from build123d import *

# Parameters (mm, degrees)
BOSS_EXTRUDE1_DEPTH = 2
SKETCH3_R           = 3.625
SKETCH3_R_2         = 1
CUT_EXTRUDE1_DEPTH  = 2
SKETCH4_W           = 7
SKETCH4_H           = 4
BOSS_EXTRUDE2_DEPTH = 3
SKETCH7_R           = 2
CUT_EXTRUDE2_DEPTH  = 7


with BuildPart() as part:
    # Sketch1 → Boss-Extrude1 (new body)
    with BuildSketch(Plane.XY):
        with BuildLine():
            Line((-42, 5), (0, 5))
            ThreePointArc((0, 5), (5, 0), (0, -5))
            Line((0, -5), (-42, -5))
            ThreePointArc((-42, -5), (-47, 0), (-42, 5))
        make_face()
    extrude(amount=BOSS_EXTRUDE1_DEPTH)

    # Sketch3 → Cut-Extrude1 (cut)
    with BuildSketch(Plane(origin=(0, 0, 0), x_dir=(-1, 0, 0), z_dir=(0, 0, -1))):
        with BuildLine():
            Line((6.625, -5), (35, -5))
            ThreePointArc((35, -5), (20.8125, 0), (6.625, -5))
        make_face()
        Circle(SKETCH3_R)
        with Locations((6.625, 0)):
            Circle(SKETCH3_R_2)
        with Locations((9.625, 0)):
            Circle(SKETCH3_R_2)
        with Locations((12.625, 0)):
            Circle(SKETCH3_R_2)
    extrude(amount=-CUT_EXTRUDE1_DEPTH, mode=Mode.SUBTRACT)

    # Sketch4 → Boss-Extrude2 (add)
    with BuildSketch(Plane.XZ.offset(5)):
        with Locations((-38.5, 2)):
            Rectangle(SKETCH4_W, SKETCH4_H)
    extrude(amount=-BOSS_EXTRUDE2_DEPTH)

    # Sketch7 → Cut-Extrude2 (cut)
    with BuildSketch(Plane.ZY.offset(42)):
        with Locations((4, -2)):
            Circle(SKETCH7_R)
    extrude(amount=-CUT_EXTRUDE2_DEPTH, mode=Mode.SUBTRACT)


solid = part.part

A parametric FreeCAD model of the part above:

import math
import FreeCAD as App
import Part
import Sketcher
Q = App.Units.Quantity

doc = App.newDocument("Part")
body = doc.addObject("PartDesign::Body", "Body")

sketch1 = body.newObject("Sketcher::SketchObject", "Sketch")
sketch1.AttachmentSupport = (doc.getObject("XY_Plane"), [""])
sketch1.MapMode = "FlatFace"
sketch1.addGeometry(Part.LineSegment(App.Vector(0, 5, 0), App.Vector(-42, 5, 0)), False)
sketch1.addGeometry(Part.ArcOfCircle(Part.Circle(App.Vector(-42, 0, 0), App.Vector(0, 0, 1), 5), math.radians(90), math.radians(270)), False)
sketch1.addGeometry(Part.LineSegment(App.Vector(-42, -5, 0), App.Vector(0, -5, 0)), False)
sketch1.addGeometry(Part.ArcOfCircle(Part.Circle(App.Vector(0, 0, 0), App.Vector(0, 0, 1), 5), math.radians(-90), math.radians(90)), False)
sketch1.addConstraint(Sketcher.Constraint("Tangent", 0, 2, 1, 1))
sketch1.addConstraint(Sketcher.Constraint("Tangent", 1, 2, 2, 1))
sketch1.addConstraint(Sketcher.Constraint("Tangent", 2, 2, 3, 1))
sketch1.addConstraint(Sketcher.Constraint("Tangent", 3, 2, 0, 1))
sketch1.addConstraint(Sketcher.Constraint("Horizontal", 0))
sketch1.addConstraint(Sketcher.Constraint("Horizontal", 2))
sketch1.addConstraint(Sketcher.Constraint("Coincident", 3, 3, -1, 1))
sketch1.addConstraint(Sketcher.Constraint("Radius", 1, Q("5 mm")))
sketch1.addConstraint(Sketcher.Constraint("DistanceX", 0, 2, 0, 1, Q("42 mm")))
pad1 = body.newObject("PartDesign::Pad", "Pad")
pad1.Profile = sketch1
pad1.Length = 2

sketch2 = body.newObject("Sketcher::SketchObject", "Sketch001")
sketch2.AttachmentSupport = (doc.getObject("XY_Plane"), [""])
sketch2.MapMode = "FlatFace"
sketch2.addGeometry(Part.LineSegment(App.Vector(-6.6, -5, 0), App.Vector(-35, -5, 0)), False)
sketch2.addGeometry(Part.ArcOfCircle(Part.Circle(App.Vector(-20.8, -22.6, 0), App.Vector(0, 0, 1), 22.6), math.radians(51), math.radians(129)), False)
sketch2.addGeometry(Part.Circle(App.Vector(0, 0, 0), App.Vector(0, 0, 1), 3.6), False)
sketch2.addGeometry(Part.Circle(App.Vector(-6.6, 0, 0), App.Vector(0, 0, 1), 1), False)
sketch2.addGeometry(Part.Circle(App.Vector(-9.6, 0, 0), App.Vector(0, 0, 1), 1), False)
sketch2.addGeometry(Part.Circle(App.Vector(-12.6, 0, 0), App.Vector(0, 0, 1), 1), False)
sketch2.addConstraint(Sketcher.Constraint("Coincident", 0, 1, 1, 1))
sketch2.addConstraint(Sketcher.Constraint("Coincident", 1, 2, 0, 2))
sketch2.addConstraint(Sketcher.Constraint("Horizontal", 0))
sketch2.addConstraint(Sketcher.Constraint("Coincident", 2, 3, -1, 1))
sketch2.addConstraint(Sketcher.Constraint("Equal", 3, 4))
sketch2.addConstraint(Sketcher.Constraint("Equal", 4, 5))
sketch2.addConstraint(Sketcher.Constraint("PointOnObject", 3, 3, -1))
sketch2.addConstraint(Sketcher.Constraint("PointOnObject", 4, 3, -1))
sketch2.addConstraint(Sketcher.Constraint("PointOnObject", 5, 3, -1))
sketch2.addConstraint(Sketcher.Constraint("Vertical", 3, 3, 0, 1))
sketch2.addConstraint(Sketcher.Constraint("Diameter", 3, Q("2 mm")))
sketch2.addConstraint(Sketcher.Constraint("Diameter", 2, Q("7.25 mm")))
sketch2.addConstraint(Sketcher.Constraint("DistanceY", 0, 1, -1, 1, Q("5 mm")))
sketch2.addConstraint(Sketcher.Constraint("DistanceX", 1, 2, -1, 1, Q("35 mm")))
sketch2.addConstraint(Sketcher.Constraint("DistanceX", 4, 3, 3, 3, Q("3 mm")))
sketch2.addConstraint(Sketcher.Constraint("DistanceX", 5, 3, 4, 3, Q("3 mm")))
sketch2.addConstraint(Sketcher.Constraint("DistanceX", 0, 2, 0, 1, Q("28.375 mm")))
sketch2.addConstraint(Sketcher.Constraint("Radius", 1, Q("22.628516 mm")))
pocket1 = body.newObject("PartDesign::Pocket", "Pocket")
pocket1.Profile = sketch2
pocket1.Length = 2
pocket1.Reversed = True

sketch3 = body.newObject("Sketcher::SketchObject", "Sketch002")
sketch3.AttachmentSupport = (doc.getObject("XZ_Plane"), [""])
sketch3.MapMode = "FlatFace"
sketch3.AttachmentOffset = App.Placement(App.Vector(0, 0, 5), App.Rotation())
sketch3.addGeometry(Part.LineSegment(App.Vector(-42, 4, 0), App.Vector(-42, 0, 0)), False)
sketch3.addGeometry(Part.LineSegment(App.Vector(-42, 0, 0), App.Vector(-35, 0, 0)), False)
sketch3.addGeometry(Part.LineSegment(App.Vector(-35, 0, 0), App.Vector(-35, 4, 0)), False)
sketch3.addGeometry(Part.LineSegment(App.Vector(-35, 4, 0), App.Vector(-42, 4, 0)), False)
sketch3.addConstraint(Sketcher.Constraint("Coincident", 0, 2, 1, 1))
sketch3.addConstraint(Sketcher.Constraint("Coincident", 1, 2, 2, 1))
sketch3.addConstraint(Sketcher.Constraint("Coincident", 2, 2, 3, 1))
sketch3.addConstraint(Sketcher.Constraint("Coincident", 3, 2, 0, 1))
sketch3.addConstraint(Sketcher.Constraint("Vertical", 0))
sketch3.addConstraint(Sketcher.Constraint("Horizontal", 1))
sketch3.addConstraint(Sketcher.Constraint("Vertical", 2))
sketch3.addConstraint(Sketcher.Constraint("Horizontal", 3))
sketch3.addConstraint(Sketcher.Constraint("PointOnObject", 0, 2, -1))
sketch3.addConstraint(Sketcher.Constraint("DistanceX", 1, 1, 1, 2, Q("7 mm")))
sketch3.addConstraint(Sketcher.Constraint("DistanceY", 0, 2, 0, 1, Q("4 mm")))
sketch3.addConstraint(Sketcher.Constraint("DistanceX", 0, 2, -1, 1, Q("42 mm")))
pad2 = body.newObject("PartDesign::Pad", "Pad001")
pad2.Profile = sketch3
pad2.Length = 3
pad2.Reversed = True

sketch4 = body.newObject("Sketcher::SketchObject", "Sketch003")
sketch4.AttachmentSupport = (doc.getObject("YZ_Plane"), [""])
sketch4.MapMode = "FlatFace"
sketch4.AttachmentOffset = App.Placement(App.Vector(0, 0, -42), App.Rotation())
sketch4.addGeometry(Part.Circle(App.Vector(-2, 4, 0), App.Vector(0, 0, 1), 2), False)
sketch4.addConstraint(Sketcher.Constraint("Diameter", 0, Q("4 mm")))
sketch4.addConstraint(Sketcher.Constraint("DistanceX", 0, 3, -1, 1, Q("2 mm")))
sketch4.addConstraint(Sketcher.Constraint("DistanceY", -1, 1, 0, 3, Q("4 mm")))
pocket2 = body.newObject("PartDesign::Pocket", "Pocket001")
pocket2.Profile = sketch4
pocket2.Length = 7
pocket2.Reversed = True

doc.recompute()
